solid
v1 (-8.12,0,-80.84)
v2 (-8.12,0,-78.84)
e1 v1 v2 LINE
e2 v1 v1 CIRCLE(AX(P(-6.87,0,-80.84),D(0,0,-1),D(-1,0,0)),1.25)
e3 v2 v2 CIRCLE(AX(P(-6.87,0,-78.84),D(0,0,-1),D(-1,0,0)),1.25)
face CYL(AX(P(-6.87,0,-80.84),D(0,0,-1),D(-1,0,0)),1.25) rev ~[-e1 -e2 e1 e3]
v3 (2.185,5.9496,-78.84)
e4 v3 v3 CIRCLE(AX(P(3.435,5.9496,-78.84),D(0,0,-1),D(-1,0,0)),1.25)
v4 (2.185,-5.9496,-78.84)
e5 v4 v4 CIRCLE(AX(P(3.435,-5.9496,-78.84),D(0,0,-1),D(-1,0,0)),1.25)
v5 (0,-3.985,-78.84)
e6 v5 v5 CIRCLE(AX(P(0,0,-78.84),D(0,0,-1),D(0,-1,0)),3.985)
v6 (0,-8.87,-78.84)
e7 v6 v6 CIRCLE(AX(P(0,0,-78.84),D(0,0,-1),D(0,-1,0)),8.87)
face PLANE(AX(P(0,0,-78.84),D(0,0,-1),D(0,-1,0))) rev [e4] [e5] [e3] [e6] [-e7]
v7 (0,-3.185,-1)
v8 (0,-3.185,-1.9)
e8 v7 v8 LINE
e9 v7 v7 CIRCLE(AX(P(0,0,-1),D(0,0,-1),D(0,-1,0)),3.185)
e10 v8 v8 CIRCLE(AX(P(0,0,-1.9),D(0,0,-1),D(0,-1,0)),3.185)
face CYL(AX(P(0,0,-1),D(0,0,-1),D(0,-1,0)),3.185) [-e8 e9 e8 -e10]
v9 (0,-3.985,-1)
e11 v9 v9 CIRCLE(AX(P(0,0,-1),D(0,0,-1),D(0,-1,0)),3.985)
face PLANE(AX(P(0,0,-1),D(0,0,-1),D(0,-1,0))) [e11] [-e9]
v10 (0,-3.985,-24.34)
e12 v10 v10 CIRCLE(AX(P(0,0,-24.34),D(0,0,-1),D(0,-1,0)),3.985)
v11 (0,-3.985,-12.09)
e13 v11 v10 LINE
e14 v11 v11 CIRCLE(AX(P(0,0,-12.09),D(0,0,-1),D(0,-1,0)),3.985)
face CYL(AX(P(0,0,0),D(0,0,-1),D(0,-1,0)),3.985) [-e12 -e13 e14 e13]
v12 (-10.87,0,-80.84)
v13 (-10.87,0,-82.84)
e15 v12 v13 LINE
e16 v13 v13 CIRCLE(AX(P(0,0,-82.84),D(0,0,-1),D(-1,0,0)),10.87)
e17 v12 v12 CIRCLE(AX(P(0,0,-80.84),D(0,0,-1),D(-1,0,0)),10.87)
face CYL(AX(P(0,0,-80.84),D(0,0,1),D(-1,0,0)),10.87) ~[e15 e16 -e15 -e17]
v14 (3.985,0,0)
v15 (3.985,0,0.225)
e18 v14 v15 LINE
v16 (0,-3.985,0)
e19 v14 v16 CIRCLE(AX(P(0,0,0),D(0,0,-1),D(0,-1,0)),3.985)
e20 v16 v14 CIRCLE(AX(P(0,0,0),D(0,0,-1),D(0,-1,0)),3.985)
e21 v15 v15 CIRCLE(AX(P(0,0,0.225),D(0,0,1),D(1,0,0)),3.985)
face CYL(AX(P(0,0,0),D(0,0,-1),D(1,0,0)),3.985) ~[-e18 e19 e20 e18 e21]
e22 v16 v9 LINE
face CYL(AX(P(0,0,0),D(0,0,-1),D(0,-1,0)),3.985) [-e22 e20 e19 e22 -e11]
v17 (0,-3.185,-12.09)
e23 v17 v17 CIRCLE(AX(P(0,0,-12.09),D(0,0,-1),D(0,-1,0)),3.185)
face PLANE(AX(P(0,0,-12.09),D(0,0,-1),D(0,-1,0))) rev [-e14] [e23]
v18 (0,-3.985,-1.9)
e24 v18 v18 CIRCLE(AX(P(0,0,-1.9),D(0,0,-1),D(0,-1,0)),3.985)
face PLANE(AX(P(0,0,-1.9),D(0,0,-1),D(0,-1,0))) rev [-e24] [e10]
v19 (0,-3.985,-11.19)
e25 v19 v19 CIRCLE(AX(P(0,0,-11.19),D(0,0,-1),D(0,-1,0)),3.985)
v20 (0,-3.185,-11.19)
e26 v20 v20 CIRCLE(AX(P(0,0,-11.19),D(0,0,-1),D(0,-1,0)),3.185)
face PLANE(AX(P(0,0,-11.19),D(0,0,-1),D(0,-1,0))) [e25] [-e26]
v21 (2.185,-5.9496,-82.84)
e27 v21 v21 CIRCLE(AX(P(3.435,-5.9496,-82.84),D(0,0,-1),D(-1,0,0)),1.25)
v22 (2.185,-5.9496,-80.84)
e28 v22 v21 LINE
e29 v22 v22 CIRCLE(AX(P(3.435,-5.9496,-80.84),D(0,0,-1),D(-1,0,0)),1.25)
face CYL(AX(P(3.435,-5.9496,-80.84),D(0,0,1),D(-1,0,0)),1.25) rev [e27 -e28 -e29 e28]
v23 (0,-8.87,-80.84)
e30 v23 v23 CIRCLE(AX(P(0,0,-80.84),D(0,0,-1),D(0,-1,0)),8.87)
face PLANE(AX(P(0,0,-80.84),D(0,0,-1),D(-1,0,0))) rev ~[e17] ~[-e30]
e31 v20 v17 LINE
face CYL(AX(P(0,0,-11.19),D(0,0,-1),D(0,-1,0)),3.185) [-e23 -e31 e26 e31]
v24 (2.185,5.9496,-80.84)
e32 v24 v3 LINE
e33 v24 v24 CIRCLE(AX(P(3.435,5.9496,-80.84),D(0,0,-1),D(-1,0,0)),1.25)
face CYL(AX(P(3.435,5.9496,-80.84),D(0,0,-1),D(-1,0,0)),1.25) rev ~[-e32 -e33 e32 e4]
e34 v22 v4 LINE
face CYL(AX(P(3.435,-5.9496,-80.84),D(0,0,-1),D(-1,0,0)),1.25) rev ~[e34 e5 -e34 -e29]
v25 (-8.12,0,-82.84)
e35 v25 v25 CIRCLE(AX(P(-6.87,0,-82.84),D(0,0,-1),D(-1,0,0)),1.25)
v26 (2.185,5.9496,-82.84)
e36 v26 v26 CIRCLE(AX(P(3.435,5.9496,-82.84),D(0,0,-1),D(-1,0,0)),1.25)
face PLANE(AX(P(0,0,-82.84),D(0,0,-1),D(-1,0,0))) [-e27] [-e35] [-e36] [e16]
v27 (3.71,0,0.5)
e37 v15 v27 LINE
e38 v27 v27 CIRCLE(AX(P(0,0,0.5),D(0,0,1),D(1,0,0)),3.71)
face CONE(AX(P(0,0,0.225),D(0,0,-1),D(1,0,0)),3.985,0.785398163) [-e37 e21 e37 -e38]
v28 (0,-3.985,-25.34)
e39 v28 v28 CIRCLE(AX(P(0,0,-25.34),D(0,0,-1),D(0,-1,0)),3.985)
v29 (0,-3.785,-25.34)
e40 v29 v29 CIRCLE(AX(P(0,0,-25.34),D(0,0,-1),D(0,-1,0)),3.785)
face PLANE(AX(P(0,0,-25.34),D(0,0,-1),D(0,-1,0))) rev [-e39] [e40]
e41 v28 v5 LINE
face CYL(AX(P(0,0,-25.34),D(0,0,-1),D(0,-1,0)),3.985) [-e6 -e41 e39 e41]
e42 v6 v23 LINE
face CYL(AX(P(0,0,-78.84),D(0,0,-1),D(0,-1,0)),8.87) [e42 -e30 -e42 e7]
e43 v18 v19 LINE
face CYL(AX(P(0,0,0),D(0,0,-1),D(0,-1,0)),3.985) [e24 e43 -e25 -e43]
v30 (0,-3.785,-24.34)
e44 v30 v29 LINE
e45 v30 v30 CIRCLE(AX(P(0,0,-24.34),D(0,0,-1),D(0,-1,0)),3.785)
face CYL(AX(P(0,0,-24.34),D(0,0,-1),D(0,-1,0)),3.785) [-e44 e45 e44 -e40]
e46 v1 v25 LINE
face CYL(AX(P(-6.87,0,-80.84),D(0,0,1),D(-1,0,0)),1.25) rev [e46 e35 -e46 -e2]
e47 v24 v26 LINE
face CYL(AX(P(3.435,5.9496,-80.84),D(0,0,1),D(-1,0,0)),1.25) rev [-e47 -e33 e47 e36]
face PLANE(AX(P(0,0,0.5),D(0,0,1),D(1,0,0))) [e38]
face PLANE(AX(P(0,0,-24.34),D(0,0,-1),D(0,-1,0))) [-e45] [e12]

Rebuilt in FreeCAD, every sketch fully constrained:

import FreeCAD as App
import Part
import Sketcher

V = App.Vector


def edges_at(feature, points):
    """Names of the edges that pass closest to the given points."""
    edges = feature.Shape.Edges
    near = lambda p: min(range(len(edges)), key=lambda i: edges[i].distToShape(Part.Vertex(*p))[0])
    return sorted({f"Edge{near(p) + 1}" for p in points})

doc = App.newDocument("Part")
body = doc.addObject("PartDesign::Body", "Body")

# Sketch on YZ plane
sketch1 = doc.addObject("Sketcher::SketchObject", "Sketch")
body.addObject(sketch1)
sketch1.AttachmentSupport = (doc.YZ_Plane, [""])
sketch1.MapMode = "FlatFace"
sketch1.addGeometry([
    Part.LineSegment(V(0, -80.84, 0), V(0, 0, 0)),  # 0
    Part.LineSegment(V(0, 0, 0), V(-3.98, 0, 0)),  # 1
    Part.LineSegment(V(-3.98, 0, 0), V(-3.98, -1, 0)),  # 2
    Part.LineSegment(V(-3.98, -1, 0), V(-3.19, -1, 0)),  # 3
    Part.LineSegment(V(-3.19, -1, 0), V(-3.19, -1.9, 0)),  # 4
    Part.LineSegment(V(-3.19, -1.9, 0), V(-3.98, -1.9, 0)),  # 5
    Part.LineSegment(V(-3.98, -1.9, 0), V(-3.98, -11.19, 0)),  # 6
    Part.LineSegment(V(-3.98, -11.19, 0), V(-3.19, -11.19, 0)),  # 7
    Part.LineSegment(V(-3.19, -11.19, 0), V(-3.19, -12.09, 0)),  # 8
    Part.LineSegment(V(-3.19, -12.09, 0), V(-3.98, -12.09, 0)),  # 9
    Part.LineSegment(V(-3.98, -12.09, 0), V(-3.98, -24.34, 0)),  # 10
    Part.LineSegment(V(-3.98, -24.34, 0), V(-3.79, -24.34, 0)),  # 11
    Part.LineSegment(V(-3.79, -24.34, 0), V(-3.79, -25.34, 0)),  # 12
    Part.LineSegment(V(-3.79, -25.34, 0), V(-3.98, -25.34, 0)),  # 13
    Part.LineSegment(V(-3.98, -25.34, 0), V(-3.98, -78.84, 0)),  # 14
    Part.LineSegment(V(-3.98, -78.84, 0), V(-8.87, -78.84, 0)),  # 15
    Part.LineSegment(V(-8.87, -78.84, 0), V(-8.87, -80.84, 0)),  # 16
    Part.LineSegment(V(-8.87, -80.84, 0), V(0, -80.84, 0)),  # 17
], False)
sketch1.addConstraint([
    Sketcher.Constraint("Coincident", 0, 2, 1, 1),
    Sketcher.Constraint("Coincident", 1, 2, 2, 1),
    Sketcher.Constraint("Coincident", 2, 2, 3, 1),
    Sketcher.Constraint("Coincident", 3, 2, 4, 1),
    Sketcher.Constraint("Coincident", 4, 2, 5, 1),
    Sketcher.Constraint("Coincident", 5, 2, 6, 1),
    Sketcher.Constraint("Coincident", 6, 2, 7, 1),
    Sketcher.Constraint("Coincident", 7, 2, 8, 1),
    Sketcher.Constraint("Coincident", 8, 2, 9, 1),
    Sketcher.Constraint("Coincident", 9, 2, 10, 1),
    Sketcher.Constraint("Coincident", 10, 2, 11, 1),
    Sketcher.Constraint("Coincident", 11, 2, 12, 1),
    Sketcher.Constraint("Coincident", 12, 2, 13, 1),
    Sketcher.Constraint("Coincident", 13, 2, 14, 1),
    Sketcher.Constraint("Coincident", 14, 2, 15, 1),
    Sketcher.Constraint("Coincident", 15, 2, 16, 1),
    Sketcher.Constraint("Coincident", 16, 2, 17, 1),
    Sketcher.Constraint("Coincident", 17, 2, 0, 1),
    Sketcher.Constraint("Vertical", 0),
    Sketcher.Constraint("Horizontal", 1),
    Sketcher.Constraint("Vertical", 2),
    Sketcher.Constraint("Horizontal", 3),
    Sketcher.Constraint("Vertical", 4),
    Sketcher.Constraint("Horizontal", 5),
    Sketcher.Constraint("Vertical", 6),
    Sketcher.Constraint("Horizontal", 7),
    Sketcher.Constraint("Vertical", 8),
    Sketcher.Constraint("Horizontal", 9),
    Sketcher.Constraint("Vertical", 10),
    Sketcher.Constraint("Horizontal", 11),
    Sketcher.Constraint("Vertical", 12),
    Sketcher.Constraint("Horizontal", 13),
    Sketcher.Constraint("Vertical", 14),
    Sketcher.Constraint("Horizontal", 15),
    Sketcher.Constraint("Vertical", 16),
    Sketcher.Constraint("Horizontal", 17),
    Sketcher.Constraint("Coincident", 0, 2, -1, 1),
    Sketcher.Constraint("Vertical", 2, 2, 5, 2),
    Sketcher.Constraint("Vertical", 4, 2, 7, 2),
    Sketcher.Constraint("Vertical", 6, 2, 9, 2),
    Sketcher.Constraint("Vertical", 10, 2, 13, 2),
    Sketcher.Constraint("Equal", 4, 8),
    Sketcher.Constraint("Equal", 2, 12),
    Sketcher.Constraint("DistanceY", 2, 2, 2, 1, 1.0),
    Sketcher.Constraint("DistanceY", 16, 2, 16, 1, 2.0),
    Sketcher.Constraint("DistanceX", 3, 1, 3, 2, 0.8),
    Sketcher.Constraint("DistanceX", 11, 1, 11, 2, 0.2),
    Sketcher.Constraint("DistanceY", 4, 2, 4, 1, 0.9),
    Sketcher.Constraint("DistanceY", 16, 2, 13, 2, 55.5),
    Sketcher.Constraint("DistanceX", 1, 2, 1, 1, 3.985),
    Sketcher.Constraint("DistanceX", 17, 1, 17, 2, 8.87),
    Sketcher.Constraint("DistanceY", 0, 1, 0, 2, 80.84),
    Sketcher.Constraint("DistanceY", 6, 2, 6, 1, 9.29),
])
revolution = doc.addObject("PartDesign::Revolution", "Revolution")
body.addObject(revolution)
revolution.Profile = sketch1
revolution.ReferenceAxis = (sketch1, ["V_Axis"])
revolution.Angle = 360

# Sketch on XY plane
sketch2 = doc.addObject("Sketcher::SketchObject", "Sketch001")
body.addObject(sketch2)
sketch2.AttachmentSupport = (doc.XY_Plane, [""])
sketch2.MapMode = "FlatFace"
sketch2.AttachmentOffset = App.Placement(V(0, 0, -80.84), App.Rotation())
sketch2.addGeometry([
    Part.Circle(V(-6.9, 0, 0), V(0, 0, 1), 1.2),
    Part.Circle(V(3.4, 5.9, 0), V(0, 0, 1), 1.2),
    Part.Circle(V(3.4, -5.9, 0), V(0, 0, 1), 1.2),
], False)
sketch2.addConstraint([
    Sketcher.Constraint("Equal", 0, 1),
    Sketcher.Constraint("Equal", 1, 2),
    Sketcher.Constraint("Symmetric", 1, 3, 2, 3, -1),
    Sketcher.Constraint("PointOnObject", 0, 3, -1),
    Sketcher.Constraint("Diameter", 0, 2.5),
    Sketcher.Constraint("DistanceX", 0, 3, -1, 1, 6.87),
    Sketcher.Constraint("DistanceX", -1, 1, 1, 3, 3.435),
    Sketcher.Constraint("DistanceY", -1, 1, 1, 3, 5.9496),
])
pocket1 = doc.addObject("PartDesign::Pocket", "Pocket")
body.addObject(pocket1)
pocket1.Profile = sketch2
pocket1.Type = "ThroughAll"
pocket1.Reversed = True

# Sketch on XY plane
sketch3 = doc.addObject("Sketcher::SketchObject", "Sketch002")
body.addObject(sketch3)
sketch3.AttachmentSupport = (doc.XY_Plane, [""])
sketch3.MapMode = "FlatFace"
sketch3.AttachmentOffset = App.Placement(V(0, 0, -80.84), App.Rotation())
sketch3.addGeometry([
    Part.Circle(V(0, 0, 0), V(0, 0, 1), 10.9),
    Part.Circle(V(3.4, -5.9, 0), V(0, 0, 1), 1.2),
    Part.Circle(V(3.4, 5.9, 0), V(0, 0, 1), 1.2),
    Part.Circle(V(-6.9, 0, 0), V(0, 0, 1), 1.2),
], False)
sketch3.addConstraint([
    Sketcher.Constraint("Coincident", 0, 3, -1, 1),
    Sketcher.Constraint("Equal", 1, 2),
    Sketcher.Constraint("Equal", 2, 3),
    Sketcher.Constraint("Symmetric", 1, 3, 2, 3, -1),
    Sketcher.Constraint("PointOnObject", 3, 3, -1),
    Sketcher.Constraint("Diameter", 1, 2.5),
    Sketcher.Constraint("Diameter", 0, 21.74),
    Sketcher.Constraint("DistanceX", 3, 3, -1, 1, 6.87),
    Sketcher.Constraint("DistanceX", -1, 1, 1, 3, 3.435),
    Sketcher.Constraint("DistanceY", 1, 3, -1, 1, 5.9496),
])
pad1 = doc.addObject("PartDesign::Pad", "Pad")
body.addObject(pad1)
pad1.Profile = sketch3
pad1.Length = 2
pad1.Reversed = True

# Sketch on XY plane
sketch4 = doc.addObject("Sketcher::SketchObject", "Sketch003")
body.addObject(sketch4)
sketch4.AttachmentSupport = (doc.XY_Plane, [""])
sketch4.MapMode = "FlatFace"
sketch4.addGeometry(Part.Circle(V(0, 0, 0), V(0, 0, 1), 4), False)
sketch4.addConstraint([
    Sketcher.Constraint("Coincident", 0, 3, -1, 1),
    Sketcher.Constraint("Diameter", 0, 7.97),
])
pad2 = doc.addObject("PartDesign::Pad", "Pad001")
body.addObject(pad2)
pad2.Profile = sketch4
pad2.Length = 0.5
doc.recompute()

chamfer = doc.addObject("PartDesign::Chamfer", "Chamfer")
body.addObject(chamfer)
chamfer.Base = (pad2, edges_at(pad2, [(-3.985, 0, 0.5)]))
chamfer.Size = 0.275

doc.recompute()
